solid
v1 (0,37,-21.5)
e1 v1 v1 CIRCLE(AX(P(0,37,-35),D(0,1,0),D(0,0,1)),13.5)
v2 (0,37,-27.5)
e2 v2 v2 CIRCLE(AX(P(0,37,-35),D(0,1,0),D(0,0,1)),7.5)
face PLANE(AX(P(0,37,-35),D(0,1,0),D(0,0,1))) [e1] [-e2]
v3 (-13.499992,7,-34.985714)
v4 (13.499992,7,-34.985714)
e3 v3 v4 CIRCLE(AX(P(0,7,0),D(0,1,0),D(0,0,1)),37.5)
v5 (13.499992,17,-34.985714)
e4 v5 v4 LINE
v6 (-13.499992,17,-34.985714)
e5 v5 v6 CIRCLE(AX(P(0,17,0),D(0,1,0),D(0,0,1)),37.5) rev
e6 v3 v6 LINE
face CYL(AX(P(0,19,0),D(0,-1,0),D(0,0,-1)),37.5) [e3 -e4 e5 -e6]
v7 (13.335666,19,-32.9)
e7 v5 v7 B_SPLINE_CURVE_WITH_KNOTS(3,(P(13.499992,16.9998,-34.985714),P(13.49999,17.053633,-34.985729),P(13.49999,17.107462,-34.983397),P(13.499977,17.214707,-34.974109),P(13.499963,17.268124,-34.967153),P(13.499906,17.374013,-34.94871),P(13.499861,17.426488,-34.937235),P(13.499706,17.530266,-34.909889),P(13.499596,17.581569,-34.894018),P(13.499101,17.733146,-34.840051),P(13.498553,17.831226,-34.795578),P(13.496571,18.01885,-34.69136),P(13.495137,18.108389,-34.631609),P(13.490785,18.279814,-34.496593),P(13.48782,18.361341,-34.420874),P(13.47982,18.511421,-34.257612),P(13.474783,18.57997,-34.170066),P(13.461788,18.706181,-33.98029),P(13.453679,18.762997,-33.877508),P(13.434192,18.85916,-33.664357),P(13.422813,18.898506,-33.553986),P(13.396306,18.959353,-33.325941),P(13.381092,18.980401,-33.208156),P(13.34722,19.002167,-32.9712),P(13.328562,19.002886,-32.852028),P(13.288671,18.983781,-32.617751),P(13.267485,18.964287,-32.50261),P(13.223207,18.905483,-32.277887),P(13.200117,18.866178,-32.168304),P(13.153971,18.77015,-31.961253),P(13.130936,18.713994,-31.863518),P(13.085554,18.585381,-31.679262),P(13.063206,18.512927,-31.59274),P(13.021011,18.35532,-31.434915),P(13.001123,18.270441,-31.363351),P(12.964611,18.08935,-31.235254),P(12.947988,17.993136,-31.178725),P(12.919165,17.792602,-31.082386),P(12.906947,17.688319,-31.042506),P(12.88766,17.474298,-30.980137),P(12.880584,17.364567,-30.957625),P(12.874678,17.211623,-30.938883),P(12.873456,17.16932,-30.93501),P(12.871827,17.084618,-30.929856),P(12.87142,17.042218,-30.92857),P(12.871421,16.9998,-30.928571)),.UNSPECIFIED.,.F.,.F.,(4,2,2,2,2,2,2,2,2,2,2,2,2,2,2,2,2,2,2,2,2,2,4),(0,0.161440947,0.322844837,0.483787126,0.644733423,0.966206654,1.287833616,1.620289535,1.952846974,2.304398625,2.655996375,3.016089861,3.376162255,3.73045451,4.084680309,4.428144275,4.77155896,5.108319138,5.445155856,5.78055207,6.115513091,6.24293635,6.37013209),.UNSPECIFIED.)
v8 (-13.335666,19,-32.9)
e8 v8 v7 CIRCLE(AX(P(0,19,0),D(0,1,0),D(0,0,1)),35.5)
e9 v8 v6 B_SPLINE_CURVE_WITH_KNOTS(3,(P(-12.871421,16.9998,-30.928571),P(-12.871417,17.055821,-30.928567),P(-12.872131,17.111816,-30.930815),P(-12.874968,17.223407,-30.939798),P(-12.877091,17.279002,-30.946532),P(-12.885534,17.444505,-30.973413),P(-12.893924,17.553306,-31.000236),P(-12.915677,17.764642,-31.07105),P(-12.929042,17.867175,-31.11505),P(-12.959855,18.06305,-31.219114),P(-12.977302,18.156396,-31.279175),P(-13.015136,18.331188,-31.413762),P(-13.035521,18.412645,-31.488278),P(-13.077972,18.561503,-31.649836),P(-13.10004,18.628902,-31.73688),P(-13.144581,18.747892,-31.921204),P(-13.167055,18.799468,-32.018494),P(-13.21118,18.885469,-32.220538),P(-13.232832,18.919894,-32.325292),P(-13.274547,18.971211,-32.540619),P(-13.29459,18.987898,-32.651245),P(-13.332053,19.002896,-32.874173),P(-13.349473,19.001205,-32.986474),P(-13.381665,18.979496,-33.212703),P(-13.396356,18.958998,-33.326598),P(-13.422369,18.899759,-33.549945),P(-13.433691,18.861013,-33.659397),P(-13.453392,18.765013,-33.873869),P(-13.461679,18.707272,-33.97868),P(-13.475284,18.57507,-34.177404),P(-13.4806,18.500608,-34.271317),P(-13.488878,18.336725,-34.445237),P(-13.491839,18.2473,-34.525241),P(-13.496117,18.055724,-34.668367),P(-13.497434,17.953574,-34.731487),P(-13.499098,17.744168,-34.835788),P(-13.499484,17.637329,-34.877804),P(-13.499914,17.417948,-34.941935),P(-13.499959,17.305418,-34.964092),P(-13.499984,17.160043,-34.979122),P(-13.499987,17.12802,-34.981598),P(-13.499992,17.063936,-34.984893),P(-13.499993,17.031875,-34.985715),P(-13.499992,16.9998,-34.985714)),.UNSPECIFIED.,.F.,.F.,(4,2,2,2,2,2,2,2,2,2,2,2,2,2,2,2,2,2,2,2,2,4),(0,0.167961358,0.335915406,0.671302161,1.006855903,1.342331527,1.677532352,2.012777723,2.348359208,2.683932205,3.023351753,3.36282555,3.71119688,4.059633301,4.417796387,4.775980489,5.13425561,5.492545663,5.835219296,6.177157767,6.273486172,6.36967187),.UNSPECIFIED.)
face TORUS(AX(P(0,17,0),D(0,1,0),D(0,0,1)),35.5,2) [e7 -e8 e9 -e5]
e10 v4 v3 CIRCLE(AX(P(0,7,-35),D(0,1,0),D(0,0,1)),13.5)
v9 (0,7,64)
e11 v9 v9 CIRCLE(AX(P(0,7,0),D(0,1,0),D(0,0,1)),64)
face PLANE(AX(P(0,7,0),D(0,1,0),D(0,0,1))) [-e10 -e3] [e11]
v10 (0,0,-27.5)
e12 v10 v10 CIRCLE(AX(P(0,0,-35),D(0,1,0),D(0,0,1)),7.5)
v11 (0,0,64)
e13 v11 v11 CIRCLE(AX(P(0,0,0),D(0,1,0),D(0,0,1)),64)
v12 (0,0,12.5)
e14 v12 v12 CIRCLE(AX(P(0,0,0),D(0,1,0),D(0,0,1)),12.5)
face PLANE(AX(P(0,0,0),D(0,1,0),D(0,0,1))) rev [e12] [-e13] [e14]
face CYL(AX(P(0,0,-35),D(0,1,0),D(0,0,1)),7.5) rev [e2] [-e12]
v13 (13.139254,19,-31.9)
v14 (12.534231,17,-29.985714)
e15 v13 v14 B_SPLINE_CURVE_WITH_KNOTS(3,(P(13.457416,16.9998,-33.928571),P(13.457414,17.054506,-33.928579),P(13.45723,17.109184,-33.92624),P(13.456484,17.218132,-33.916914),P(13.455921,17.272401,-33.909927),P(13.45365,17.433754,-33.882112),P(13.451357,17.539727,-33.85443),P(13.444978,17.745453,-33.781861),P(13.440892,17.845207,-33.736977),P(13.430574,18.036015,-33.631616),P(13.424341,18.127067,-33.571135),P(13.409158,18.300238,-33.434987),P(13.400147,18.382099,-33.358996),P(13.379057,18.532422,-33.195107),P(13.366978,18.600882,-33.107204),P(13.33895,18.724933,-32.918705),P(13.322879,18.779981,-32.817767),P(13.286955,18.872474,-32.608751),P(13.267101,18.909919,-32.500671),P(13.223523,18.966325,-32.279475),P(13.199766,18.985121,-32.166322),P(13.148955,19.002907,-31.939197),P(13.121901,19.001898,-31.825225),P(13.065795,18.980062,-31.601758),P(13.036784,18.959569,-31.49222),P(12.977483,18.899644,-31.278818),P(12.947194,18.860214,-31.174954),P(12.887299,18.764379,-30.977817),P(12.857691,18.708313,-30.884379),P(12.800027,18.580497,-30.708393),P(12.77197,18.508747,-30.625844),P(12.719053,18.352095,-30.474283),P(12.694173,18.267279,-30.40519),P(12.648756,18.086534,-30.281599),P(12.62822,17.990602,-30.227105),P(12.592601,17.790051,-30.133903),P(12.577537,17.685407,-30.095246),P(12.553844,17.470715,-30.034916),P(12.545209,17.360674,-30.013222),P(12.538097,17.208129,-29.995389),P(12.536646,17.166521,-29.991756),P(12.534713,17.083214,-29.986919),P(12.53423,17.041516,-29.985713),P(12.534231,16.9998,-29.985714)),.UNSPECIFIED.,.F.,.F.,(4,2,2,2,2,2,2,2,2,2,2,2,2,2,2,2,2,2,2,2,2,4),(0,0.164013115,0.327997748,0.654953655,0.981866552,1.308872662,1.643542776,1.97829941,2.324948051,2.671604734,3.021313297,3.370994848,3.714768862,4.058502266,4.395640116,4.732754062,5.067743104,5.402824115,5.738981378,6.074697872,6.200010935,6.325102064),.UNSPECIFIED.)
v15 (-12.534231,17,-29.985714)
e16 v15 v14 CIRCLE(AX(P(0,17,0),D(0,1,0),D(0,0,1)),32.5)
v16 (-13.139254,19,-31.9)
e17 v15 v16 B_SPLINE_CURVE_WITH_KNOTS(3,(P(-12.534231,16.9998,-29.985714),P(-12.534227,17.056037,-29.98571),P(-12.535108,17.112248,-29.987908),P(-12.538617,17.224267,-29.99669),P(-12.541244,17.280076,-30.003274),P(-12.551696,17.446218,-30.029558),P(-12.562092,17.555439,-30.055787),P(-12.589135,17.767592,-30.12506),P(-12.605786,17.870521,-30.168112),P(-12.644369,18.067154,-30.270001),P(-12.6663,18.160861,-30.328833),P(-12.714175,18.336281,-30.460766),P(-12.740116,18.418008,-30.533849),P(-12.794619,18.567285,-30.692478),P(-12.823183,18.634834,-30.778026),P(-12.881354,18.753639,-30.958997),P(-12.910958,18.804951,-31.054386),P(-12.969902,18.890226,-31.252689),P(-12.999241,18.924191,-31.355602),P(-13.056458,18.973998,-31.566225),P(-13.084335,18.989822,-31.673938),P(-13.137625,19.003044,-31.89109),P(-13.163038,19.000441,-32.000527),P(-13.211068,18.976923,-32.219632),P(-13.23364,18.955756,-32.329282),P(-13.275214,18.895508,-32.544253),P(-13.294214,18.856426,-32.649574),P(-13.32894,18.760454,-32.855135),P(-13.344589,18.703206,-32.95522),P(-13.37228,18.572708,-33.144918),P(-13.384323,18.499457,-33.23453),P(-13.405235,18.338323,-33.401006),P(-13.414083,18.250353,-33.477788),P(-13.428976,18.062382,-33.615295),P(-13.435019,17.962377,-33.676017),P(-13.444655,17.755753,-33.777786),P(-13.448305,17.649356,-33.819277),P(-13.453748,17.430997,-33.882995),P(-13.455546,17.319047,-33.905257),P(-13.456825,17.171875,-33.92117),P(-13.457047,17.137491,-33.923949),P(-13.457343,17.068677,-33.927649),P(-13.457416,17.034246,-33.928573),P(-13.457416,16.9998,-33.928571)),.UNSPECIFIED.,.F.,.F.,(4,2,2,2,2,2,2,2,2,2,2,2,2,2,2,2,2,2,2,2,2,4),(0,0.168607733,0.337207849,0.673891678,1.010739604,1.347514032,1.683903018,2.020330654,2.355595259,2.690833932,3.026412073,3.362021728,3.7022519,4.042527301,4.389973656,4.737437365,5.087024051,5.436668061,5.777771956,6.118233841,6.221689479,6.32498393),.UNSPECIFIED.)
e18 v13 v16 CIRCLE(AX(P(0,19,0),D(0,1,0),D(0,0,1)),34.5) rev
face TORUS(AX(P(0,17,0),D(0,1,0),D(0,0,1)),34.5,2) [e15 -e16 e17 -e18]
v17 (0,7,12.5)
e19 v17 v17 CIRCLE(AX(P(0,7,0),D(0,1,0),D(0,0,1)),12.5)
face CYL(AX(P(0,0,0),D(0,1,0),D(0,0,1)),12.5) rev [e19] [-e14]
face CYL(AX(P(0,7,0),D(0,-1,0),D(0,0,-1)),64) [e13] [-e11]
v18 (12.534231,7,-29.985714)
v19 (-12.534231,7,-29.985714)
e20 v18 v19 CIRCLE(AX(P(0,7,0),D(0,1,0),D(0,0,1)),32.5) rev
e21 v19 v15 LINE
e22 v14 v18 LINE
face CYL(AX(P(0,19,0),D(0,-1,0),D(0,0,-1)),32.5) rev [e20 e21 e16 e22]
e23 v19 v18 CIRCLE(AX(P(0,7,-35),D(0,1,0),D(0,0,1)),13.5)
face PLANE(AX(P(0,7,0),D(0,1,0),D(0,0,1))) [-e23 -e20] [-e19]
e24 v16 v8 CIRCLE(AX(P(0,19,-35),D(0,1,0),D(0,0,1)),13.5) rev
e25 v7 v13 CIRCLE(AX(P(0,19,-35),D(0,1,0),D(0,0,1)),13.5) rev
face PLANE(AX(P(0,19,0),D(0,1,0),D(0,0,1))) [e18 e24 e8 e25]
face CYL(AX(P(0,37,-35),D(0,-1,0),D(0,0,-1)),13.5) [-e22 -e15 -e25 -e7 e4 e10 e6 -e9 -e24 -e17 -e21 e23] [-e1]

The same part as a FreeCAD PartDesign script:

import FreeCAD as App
import Part
import Sketcher
from FreeCAD import Vector


def edges_at(feature, points):
    """Names of the edges that pass closest to the given points."""
    edges = feature.Shape.Edges
    near = lambda p: min(range(len(edges)), key=lambda i: edges[i].distToShape(Part.Vertex(*p))[0])
    return sorted({f"Edge{near(p) + 1}" for p in points})

doc = App.newDocument("Part")
body = doc.addObject("PartDesign::Body", "Body")

# Sketch on XZ plane
sketch1 = body.newObject("Sketcher::SketchObject", "Sketch")
sketch1.AttachmentSupport = (doc.getObject("XZ_Plane"), [""])
sketch1.MapMode = "FlatFace"
sketch1.addGeometry(Part.Circle(Vector(0, 0, 0), Vector(0, 0, 1), 64), False)
sketch1.addConstraint(Sketcher.Constraint("Coincident", 0, 3, -1, 1))
sketch1.addConstraint(Sketcher.Constraint("Diameter", 0, 128.0))
pad1 = body.newObject("PartDesign::Pad", "Pad")
pad1.Profile = sketch1
pad1.Length = 7
pad1.Reversed = True

# Sketch on XZ plane
sketch2 = body.newObject("Sketcher::SketchObject", "Sketch001")
sketch2.AttachmentSupport = (doc.getObject("XZ_Plane"), [""])
sketch2.MapMode = "FlatFace"
sketch2.AttachmentOffset = App.Placement(Vector(0, 0, -7), App.Rotation())
sketch2.addGeometry(Part.Circle(Vector(0, 0, 0), Vector(0, 0, 1), 37.5), False)
sketch2.addGeometry(Part.Circle(Vector(0, 0, 0), Vector(0, 0, 1), 32.5), False)
sketch2.addConstraint(Sketcher.Constraint("Coincident", 0, 3, -1, 1))
sketch2.addConstraint(Sketcher.Constraint("Coincident", 1, 3, -1, 1))
sketch2.addConstraint(Sketcher.Constraint("Diameter", 0, 75.0))
sketch2.addConstraint(Sketcher.Constraint("Diameter", 1, 65.0))
pad2 = body.newObject("PartDesign::Pad", "Pad001")
pad2.Profile = sketch2
pad2.Length = 12
pad2.Reversed = True

# Sketch on XZ plane
sketch3 = body.newObject("Sketcher::SketchObject", "Sketch002")
sketch3.AttachmentSupport = (doc.getObject("XZ_Plane"), [""])
sketch3.MapMode = "FlatFace"
sketch3.AttachmentOffset = App.Placement(Vector(0, 0, -7), App.Rotation())
sketch3.addGeometry(Part.Circle(Vector(0, 0, 0), Vector(0, 0, 1), 12.5), False)
sketch3.addConstraint(Sketcher.Constraint("Coincident", 0, 3, -1, 1))
sketch3.addConstraint(Sketcher.Constraint("Diameter", 0, 25.0))
pocket1 = body.newObject("PartDesign::Pocket", "Pocket")
pocket1.Profile = sketch3
pocket1.Type = "ThroughAll"
pocket1.Reversed = True
doc.recompute()

fillet = body.newObject("PartDesign::Fillet", "Fillet")
fillet.Base = (pocket1, edges_at(pocket1, [(-37.5, 19, 0), (-32.5, 19, 0)]))
fillet.Radius = 2

# Sketch on XZ plane
sketch4 = body.newObject("Sketcher::SketchObject", "Sketch003")
sketch4.AttachmentSupport = (doc.getObject("XZ_Plane"), [""])
sketch4.MapMode = "FlatFace"
sketch4.AttachmentOffset = App.Placement(Vector(0, 0, -7), App.Rotation())
sketch4.addGeometry(Part.Circle(Vector(0, -35, 0), Vector(0, 0, 1), 13.5), False)
sketch4.addConstraint(Sketcher.Constraint("PointOnObject", 0, 3, -2))
sketch4.addConstraint(Sketcher.Constraint("Diameter", 0, 27.0))
sketch4.addConstraint(Sketcher.Constraint("DistanceY", 0, 3, -1, 1, 35.0))
pad3 = body.newObject("PartDesign::Pad", "Pad002")
pad3.Profile = sketch4
pad3.Length = 30
pad3.Reversed = True

# Sketch on XZ plane
sketch5 = body.newObject("Sketcher::SketchObject", "Sketch004")
sketch5.AttachmentSupport = (doc.getObject("XZ_Plane"), [""])
sketch5.MapMode = "FlatFace"
sketch5.AttachmentOffset = App.Placement(Vector(0, 0, -37), App.Rotation())
sketch5.addGeometry(Part.Circle(Vector(0, -35, 0), Vector(0, 0, 1), 7.5), False)
sketch5.addConstraint(Sketcher.Constraint("PointOnObject", 0, 3, -2))
sketch5.addConstraint(Sketcher.Constraint("Diameter", 0, 15.0))
sketch5.addConstraint(Sketcher.Constraint("DistanceY", 0, 3, -1, 1, 35.0))
pocket2 = body.newObject("PartDesign::Pocket", "Pocket001")
pocket2.Profile = sketch5
pocket2.Type = "ThroughAll"
pocket2.Reversed = True

doc.recompute()
